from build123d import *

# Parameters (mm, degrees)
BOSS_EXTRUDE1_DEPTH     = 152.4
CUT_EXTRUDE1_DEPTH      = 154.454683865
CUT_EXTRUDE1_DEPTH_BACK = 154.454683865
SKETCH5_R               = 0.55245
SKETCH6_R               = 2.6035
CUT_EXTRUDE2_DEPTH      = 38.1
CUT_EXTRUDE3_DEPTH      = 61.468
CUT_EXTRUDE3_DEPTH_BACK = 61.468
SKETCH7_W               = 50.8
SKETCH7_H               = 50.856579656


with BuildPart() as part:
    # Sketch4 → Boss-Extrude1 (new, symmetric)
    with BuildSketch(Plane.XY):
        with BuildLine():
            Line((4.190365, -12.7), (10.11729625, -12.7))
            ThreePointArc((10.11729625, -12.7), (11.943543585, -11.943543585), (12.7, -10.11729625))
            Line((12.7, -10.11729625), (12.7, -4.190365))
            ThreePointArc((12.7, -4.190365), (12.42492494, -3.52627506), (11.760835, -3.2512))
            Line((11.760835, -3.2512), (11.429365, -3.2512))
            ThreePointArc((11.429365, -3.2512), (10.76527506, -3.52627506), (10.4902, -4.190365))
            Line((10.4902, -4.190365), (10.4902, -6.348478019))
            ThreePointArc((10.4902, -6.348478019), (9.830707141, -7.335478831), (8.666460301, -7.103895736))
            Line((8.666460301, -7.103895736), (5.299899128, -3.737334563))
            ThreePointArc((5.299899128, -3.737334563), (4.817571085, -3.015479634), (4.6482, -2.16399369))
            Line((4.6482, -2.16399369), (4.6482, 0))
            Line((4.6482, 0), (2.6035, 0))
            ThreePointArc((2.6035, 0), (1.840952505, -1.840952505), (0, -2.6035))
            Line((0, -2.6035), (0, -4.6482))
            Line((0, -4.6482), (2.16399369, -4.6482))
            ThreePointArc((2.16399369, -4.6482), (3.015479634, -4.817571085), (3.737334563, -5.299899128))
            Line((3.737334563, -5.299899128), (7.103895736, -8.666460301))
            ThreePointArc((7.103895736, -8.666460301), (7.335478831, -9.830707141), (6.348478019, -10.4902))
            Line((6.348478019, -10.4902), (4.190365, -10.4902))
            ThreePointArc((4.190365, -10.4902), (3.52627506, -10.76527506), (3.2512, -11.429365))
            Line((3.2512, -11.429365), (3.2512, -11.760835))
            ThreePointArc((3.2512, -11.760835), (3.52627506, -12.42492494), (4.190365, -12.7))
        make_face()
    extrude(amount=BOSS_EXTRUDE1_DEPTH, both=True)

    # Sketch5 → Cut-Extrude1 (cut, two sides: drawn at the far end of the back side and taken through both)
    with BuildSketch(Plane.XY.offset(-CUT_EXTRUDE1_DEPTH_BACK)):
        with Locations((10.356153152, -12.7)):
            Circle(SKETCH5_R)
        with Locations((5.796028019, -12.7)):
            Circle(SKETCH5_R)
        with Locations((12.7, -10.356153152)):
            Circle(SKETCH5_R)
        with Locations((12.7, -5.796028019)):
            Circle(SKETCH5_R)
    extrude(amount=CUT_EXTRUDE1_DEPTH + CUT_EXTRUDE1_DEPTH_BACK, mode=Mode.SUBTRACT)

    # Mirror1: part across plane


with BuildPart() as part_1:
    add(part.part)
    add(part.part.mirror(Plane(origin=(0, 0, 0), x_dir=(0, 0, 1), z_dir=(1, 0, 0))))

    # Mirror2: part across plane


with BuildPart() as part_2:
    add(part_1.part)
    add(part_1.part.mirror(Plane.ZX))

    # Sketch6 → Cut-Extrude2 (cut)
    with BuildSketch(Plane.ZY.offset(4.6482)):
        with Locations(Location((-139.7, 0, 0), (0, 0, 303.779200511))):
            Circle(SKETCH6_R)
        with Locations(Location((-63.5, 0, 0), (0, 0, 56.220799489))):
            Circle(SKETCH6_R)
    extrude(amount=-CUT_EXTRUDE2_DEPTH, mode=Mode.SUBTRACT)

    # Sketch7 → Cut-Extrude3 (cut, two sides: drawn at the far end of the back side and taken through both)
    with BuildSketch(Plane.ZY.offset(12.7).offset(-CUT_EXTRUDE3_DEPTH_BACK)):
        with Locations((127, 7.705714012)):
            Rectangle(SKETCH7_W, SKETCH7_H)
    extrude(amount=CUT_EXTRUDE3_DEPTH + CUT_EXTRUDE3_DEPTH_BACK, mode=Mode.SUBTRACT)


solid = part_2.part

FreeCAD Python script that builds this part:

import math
import FreeCAD as App
import Part
import Sketcher
from FreeCAD import Vector
Q = App.Units.Quantity

doc = App.newDocument("Part")
body = doc.addObject("PartDesign::Body", "Body")

# Sketch on XY plane
sketch1 = body.newObject("Sketcher::SketchObject", "Sketch")
sketch1.AttachmentSupport = (doc.getObject("XY_Plane"), [""])
sketch1.MapMode = "FlatFace"
sketch1.addGeometry([
    Part.LineSegment(Vector(4.19, -12.7, 0), Vector(10.12, -12.7, 0)),  # 0
    Part.ArcOfCircle(Part.Circle(Vector(10.12, -10.12, 0), Vector(0, 0, 1), 2.58), math.radians(-90), math.radians(0)),  # 1
    Part.LineSegment(Vector(12.7, -10.12, 0), Vector(12.7, -4.19, 0)),  # 2
    Part.ArcOfCircle(Part.Circle(Vector(11.76, -4.19, 0), Vector(0, 0, 1), 0.94), math.radians(0), math.radians(90)),  # 3
    Part.LineSegment(Vector(11.76, -3.25, 0), Vector(11.43, -3.25, 0)),  # 4
    Part.ArcOfCircle(Part.Circle(Vector(11.43, -4.19, 0), Vector(0, 0, 1), 0.94), math.radians(90), math.radians(180)),  # 5
    Part.LineSegment(Vector(10.49, -4.19, 0), Vector(10.49, -6.35, 0)),  # 6
    Part.ArcOfCircle(Part.Circle(Vector(9.42, -6.35, 0), Vector(0, 0, 1), 1.07), math.radians(-135), math.radians(0)),  # 7
    Part.LineSegment(Vector(8.67, -7.1, 0), Vector(5.3, -3.74, 0)),  # 8
    Part.ArcOfCircle(Part.Circle(Vector(6.87, -2.16, 0), Vector(0, 0, 1), 2.23), math.radians(-180), math.radians(-135)),  # 9
    Part.LineSegment(Vector(4.65, -2.16, 0), Vector(4.65, 0, 0)),  # 10
    Part.LineSegment(Vector(4.65, 0, 0), Vector(2.6, 0, 0)),  # 11
    Part.ArcOfCircle(Part.Circle(Vector(0, 0, 0), Vector(0, 0, 1), 2.6), math.radians(-90), math.radians(0)),  # 12
    Part.LineSegment(Vector(0, -2.6, 0), Vector(0, -4.65, 0)),  # 13
    Part.LineSegment(Vector(0, -4.65, 0), Vector(2.16, -4.65, 0)),  # 14
    Part.ArcOfCircle(Part.Circle(Vector(2.16, -6.87, 0), Vector(0, 0, 1), 2.23), math.radians(45), math.radians(90)),  # 15
    Part.LineSegment(Vector(3.74, -5.3, 0), Vector(7.1, -8.67, 0)),  # 16
    Part.ArcOfCircle(Part.Circle(Vector(6.35, -9.42, 0), Vector(0, 0, 1), 1.07), math.radians(-90), math.radians(45)),  # 17
    Part.LineSegment(Vector(6.35, -10.49, 0), Vector(4.19, -10.49, 0)),  # 18
    Part.ArcOfCircle(Part.Circle(Vector(4.19, -11.43, 0), Vector(0, 0, 1), 0.94), math.radians(90), math.radians(180)),  # 19
    Part.LineSegment(Vector(3.25, -11.43, 0), Vector(3.25, -11.76, 0)),  # 20
    Part.ArcOfCircle(Part.Circle(Vector(4.19, -11.76, 0), Vector(0, 0, 1), 0.94), math.radians(-180), math.radians(-90)),  # 21
], False)
sketch1.addConstraint([
    Sketcher.Constraint("Tangent", 0, 2, 1, 1),
    Sketcher.Constraint("Tangent", 1, 2, 2, 1),
    Sketcher.Constraint("Tangent", 2, 2, 3, 1),
    Sketcher.Constraint("Tangent", 3, 2, 4, 1),
    Sketcher.Constraint("Tangent", 4, 2, 5, 1),
    Sketcher.Constraint("Tangent", 5, 2, 6, 1),
    Sketcher.Constraint("Tangent", 6, 2, 7, 2),
    Sketcher.Constraint("Tangent", 7, 1, 8, 1),
    Sketcher.Constraint("Tangent", 8, 2, 9, 2),
    Sketcher.Constraint("Tangent", 9, 1, 10, 1),
    Sketcher.Constraint("Coincident", 10, 2, 11, 1),
    Sketcher.Constraint("Coincident", 11, 2, 12, 2),
    Sketcher.Constraint("Coincident", 12, 1, 13, 1),
    Sketcher.Constraint("Coincident", 13, 2, 14, 1),
    Sketcher.Constraint("Tangent", 14, 2, 15, 2),
    Sketcher.Constraint("Tangent", 15, 1, 16, 1),
    Sketcher.Constraint("Tangent", 16, 2, 17, 2),
    Sketcher.Constraint("Tangent", 17, 1, 18, 1),
    Sketcher.Constraint("Tangent", 18, 2, 19, 1),
    Sketcher.Constraint("Tangent", 19, 2, 20, 1),
    Sketcher.Constraint("Tangent", 20, 2, 21, 1),
    Sketcher.Constraint("Tangent", 21, 2, 0, 1),
    Sketcher.Constraint("Horizontal", 0),
    Sketcher.Constraint("Vertical", 2),
    Sketcher.Constraint("Horizontal", 4),
    Sketcher.Constraint("Vertical", 6),
    Sketcher.Constraint("Vertical", 10),
    Sketcher.Constraint("Horizontal", 11),
    Sketcher.Constraint("Vertical", 13),
    Sketcher.Constraint("Horizontal", 14),
    Sketcher.Constraint("Horizontal", 18),
    Sketcher.Constraint("Vertical", 20),
    Sketcher.Constraint("Coincident", 12, 3, -1, 1),
    Sketcher.Constraint("Equal", 3, 5),
    Sketcher.Constraint("Equal", 9, 15),
    Sketcher.Constraint("Equal", 7, 17),
    Sketcher.Constraint("Equal", 5, 19),
    Sketcher.Constraint("Equal", 19, 21),
    Sketcher.Constraint("PointOnObject", 10, 2, -1),
    Sketcher.Constraint("PointOnObject", 12, 1, -2),
    Sketcher.Constraint("Parallel", 8, 16),
    Sketcher.Constraint("Equal", 0, 2),
    Sketcher.Constraint("Equal", 18, 6),
    Sketcher.Constraint("Equal", 14, 10),
    Sketcher.Constraint("Equal", 11, 13),
    Sketcher.Constraint("Equal", 4, 20),
    Sketcher.Constraint("Equal", 8, 16),
    Sketcher.Constraint("DistanceY", 0, 2, -1, 1, Q("0.5 in")),
    Sketcher.Constraint("Radius", 9, Q("0.0876 in")),
    Sketcher.Constraint("Radius", 12, Q("0.1025 in")),
    Sketcher.Constraint("DistanceX", 9, 1, 5, 2, Q("0.23 in")),
    Sketcher.Constraint("DistanceX", 11, 2, 11, 1, Q("0.0805 in")),
    Sketcher.Constraint("DistanceY", 3, 2, -1, 1, Q("0.128 in")),
    Sketcher.Constraint("Radius", 7, 1.068322),
    Sketcher.Constraint("DistanceX", 17, 3, 7, 3, Q("0.121 in")),
    Sketcher.Constraint("Radius", 1, 2.582704),
    Sketcher.Constraint("Radius", 3, 0.939165),
])
pad1 = body.newObject("PartDesign::Pad", "Pad")
pad1.Profile = sketch1
pad1.Length = Q("12 in")
pad1.Midplane = True

# Sketch on XY plane
sketch2 = body.newObject("Sketcher::SketchObject", "Sketch001")
sketch2.AttachmentSupport = (doc.getObject("XY_Plane"), [""])
sketch2.MapMode = "FlatFace"
sketch2.addGeometry([
    Part.Circle(Vector(10.4, -12.7, 0), Vector(0, 0, 1), 0.6),
    Part.Circle(Vector(5.8, -12.7, 0), Vector(0, 0, 1), 0.6),
    Part.Circle(Vector(12.7, -10.4, 0), Vector(0, 0, 1), 0.6),
    Part.Circle(Vector(12.7, -5.8, 0), Vector(0, 0, 1), 0.6),
], False)
sketch2.addConstraint([
    Sketcher.Constraint("Equal", 0, 1),
    Sketcher.Constraint("Equal", 1, 2),
    Sketcher.Constraint("Equal", 2, 3),
    Sketcher.Constraint("Horizontal", 0, 3, 1, 3),
    Sketcher.Constraint("Vertical", 2, 3, 3, 3),
    Sketcher.Constraint("Diameter", 0, Q("0.0435 in")),
    Sketcher.Constraint("DistanceY", 0, 3, -1, 1, Q("0.5 in")),
    Sketcher.Constraint("DistanceX", -1, 1, 2, 3, Q("0.5 in")),
    Sketcher.Constraint("DistanceX", -1, 1, 1, 3, 5.796028),
    Sketcher.Constraint("DistanceY", 3, 3, -1, 1, 5.796028),
    Sketcher.Constraint("DistanceX", -1, 1, 0, 3, 10.356153),
    Sketcher.Constraint("DistanceY", 2, 3, -1, 1, 10.356153),
])
pocket1 = body.newObject("PartDesign::Pocket", "Pocket")
pocket1.Profile = sketch2
pocket1.Type = "ThroughAll"
pocket1.Midplane = True
body2 = doc.addObject("PartDesign::Body", "Body001")
doc.recompute()

body2.BaseFeature = body
doc.recompute()

mirroring = doc.addObject("Part::Mirroring", "Mirroring")
mirroring.Source = body
mirroring.Base = Vector(0, 0, 0)
mirroring.Normal = Vector(1, 0, 0)
body3 = doc.addObject("PartDesign::Body", "Body002")
body3.BaseFeature = mirroring
boolean = body2.newObject("PartDesign::Boolean", "Boolean")
boolean.Type = "Fuse"
boolean.addObjects([body3])
doc.recompute()
body4 = doc.addObject("PartDesign::Body", "Body003")
doc.recompute()

body4.BaseFeature = body2
doc.recompute()

mirroring2 = doc.addObject("Part::Mirroring", "Mirroring001")
mirroring2.Source = body2
mirroring2.Base = Vector(0, 0, 0)
mirroring2.Normal = Vector(0, 1, 0)
body5 = doc.addObject("PartDesign::Body", "Body004")
body5.BaseFeature = mirroring2
boolean2 = body4.newObject("PartDesign::Boolean", "Boolean001")
boolean2.Type = "Fuse"
boolean2.addObjects([body5])
doc.recompute()

# Sketch on YZ plane
sketch3 = body4.newObject("Sketcher::SketchObject", "Sketch002")
sketch3.AttachmentSupport = (doc.getObject("YZ_Plane003"), [""])
sketch3.MapMode = "FlatFace"
sketch3.AttachmentOffset = App.Placement(Vector(0, 0, -0.183 * 25.4), App.Rotation())
sketch3.addGeometry([
    Part.Circle(Vector(0, -139.7, 0), Vector(0, 0, 1), 2.6),
    Part.Circle(Vector(0, -63.5, 0), Vector(0, 0, 1), 2.6),
], False)
sketch3.addConstraint([
    Sketcher.Constraint("Equal", 0, 1),
    Sketcher.Constraint("PointOnObject", 0, 3, -2),
    Sketcher.Constraint("PointOnObject", 1, 3, -2),
    Sketcher.Constraint("Diameter", 0, Q("0.205 in")),
    Sketcher.Constraint("DistanceY", 0, 3, 1, 3, Q("3 in")),
    Sketcher.Constraint("DistanceY", 0, 3, -1, 1, Q("5.5 in")),
])
pocket2 = body4.newObject("PartDesign::Pocket", "Pocket001")
pocket2.Profile = sketch3
pocket2.Length = Q("1.5 in")
pocket2.Reversed = True

# Sketch on YZ plane
sketch4 = body4.newObject("Sketcher::SketchObject", "Sketch003")
sketch4.AttachmentSupport = (doc.getObject("YZ_Plane003"), [""])
sketch4.MapMode = "FlatFace"
sketch4.AttachmentOffset = App.Placement(Vector(0, 0, -0.5 * 25.4), App.Rotation())
sketch4.addGeometry([
    Part.LineSegment(Vector(33, 102, 0), Vector(-18, 102, 0)),
    Part.LineSegment(Vector(-18, 102, 0), Vector(-18, 152, 0)),
    Part.LineSegment(Vector(-18, 152, 0), Vector(33, 152, 0)),
    Part.LineSegment(Vector(33, 152, 0), Vector(33, 102, 0)),
], False)
sketch4.addConstraint([
    Sketcher.Constraint("Coincident", 0, 2, 1, 1),
    Sketcher.Constraint("Coincident", 1, 2, 2, 1),
    Sketcher.Constraint("Coincident", 2, 2, 3, 1),
    Sketcher.Constraint("Coincident", 3, 2, 0, 1),
    Sketcher.Constraint("Horizontal", 0),
    Sketcher.Constraint("Vertical", 1),
    Sketcher.Constraint("Horizontal", 2),
    Sketcher.Constraint("Vertical", 3),
    Sketcher.Constraint("DistanceY", 1, 1, 1, 2, Q("2 in")),
    Sketcher.Constraint("DistanceY", -1, 1, 0, 2, Q("4 in")),
    Sketcher.Constraint("DistanceX", 0, 2, 0, 1, 50.85658),
    Sketcher.Constraint("DistanceX", 0, 2, -1, 1, 17.722576),
])
pocket3 = body4.newObject("PartDesign::Pocket", "Pocket002")
pocket3.Profile = sketch4
pocket3.Type = "ThroughAll"
pocket3.Midplane = True
mirroring.Visibility = False
mirroring2.Visibility = False

doc.recompute()
